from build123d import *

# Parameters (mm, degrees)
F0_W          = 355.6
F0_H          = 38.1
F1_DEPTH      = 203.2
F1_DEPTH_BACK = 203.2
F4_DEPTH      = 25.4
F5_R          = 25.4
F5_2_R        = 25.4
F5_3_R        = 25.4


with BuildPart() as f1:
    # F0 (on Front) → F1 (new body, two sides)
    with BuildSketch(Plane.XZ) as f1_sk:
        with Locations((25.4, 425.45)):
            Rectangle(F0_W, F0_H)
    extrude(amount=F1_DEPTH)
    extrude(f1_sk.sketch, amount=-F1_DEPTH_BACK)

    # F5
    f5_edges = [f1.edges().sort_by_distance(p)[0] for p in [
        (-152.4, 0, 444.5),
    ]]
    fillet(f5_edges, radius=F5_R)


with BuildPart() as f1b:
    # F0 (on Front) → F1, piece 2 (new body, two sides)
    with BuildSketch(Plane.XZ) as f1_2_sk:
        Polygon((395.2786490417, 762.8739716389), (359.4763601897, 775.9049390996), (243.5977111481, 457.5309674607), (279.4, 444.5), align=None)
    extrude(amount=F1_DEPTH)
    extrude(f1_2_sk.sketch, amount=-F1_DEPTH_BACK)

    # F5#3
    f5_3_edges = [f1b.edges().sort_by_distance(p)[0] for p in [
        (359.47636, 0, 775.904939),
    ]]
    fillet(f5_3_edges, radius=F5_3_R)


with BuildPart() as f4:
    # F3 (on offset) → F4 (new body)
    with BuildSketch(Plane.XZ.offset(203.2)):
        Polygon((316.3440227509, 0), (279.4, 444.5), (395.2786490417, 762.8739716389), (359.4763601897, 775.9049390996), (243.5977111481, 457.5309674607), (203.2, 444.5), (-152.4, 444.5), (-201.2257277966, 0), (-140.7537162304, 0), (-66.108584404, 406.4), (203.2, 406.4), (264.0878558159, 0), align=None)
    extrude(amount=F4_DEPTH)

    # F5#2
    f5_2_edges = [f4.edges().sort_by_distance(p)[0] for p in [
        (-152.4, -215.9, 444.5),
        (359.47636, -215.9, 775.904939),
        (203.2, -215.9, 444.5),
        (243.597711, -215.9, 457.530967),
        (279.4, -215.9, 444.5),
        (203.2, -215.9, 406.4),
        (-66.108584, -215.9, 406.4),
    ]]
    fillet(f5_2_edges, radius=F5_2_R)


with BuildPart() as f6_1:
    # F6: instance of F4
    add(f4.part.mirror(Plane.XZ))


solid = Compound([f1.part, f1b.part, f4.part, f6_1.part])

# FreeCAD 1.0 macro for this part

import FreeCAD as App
import Part
import Sketcher
from FreeCAD import Vector
Q = App.Units.Quantity


def edges_at(feature, points):
    """Names of the edges that pass closest to the given points."""
    edges = feature.Shape.Edges
    near = lambda p: min(range(len(edges)), key=lambda i: edges[i].distToShape(Part.Vertex(*p))[0])
    return sorted({f"Edge{near(p) + 1}" for p in points})


def add_polygon(sketch, points):
    """Adds a closed chain of lines whose ends are joined by coincident constraints."""
    first, n = sketch.GeometryCount, len(points)
    for a, b in zip(points, points[1:] + points[:1]):
        sketch.addGeometry(Part.LineSegment(App.Vector(*a, 0), App.Vector(*b, 0)), False)
    for i in range(n):
        sketch.addConstraint(Sketcher.Constraint("Coincident", first + i, 2, first + (i + 1) % n, 1))

doc = App.newDocument("Part")
body = doc.addObject("PartDesign::Body", "Body")

sketch1 = doc.addObject("Sketcher::SketchObject", "Sketch")
body.addObject(sketch1)
sketch1.AttachmentSupport = (doc.XZ_Plane, [""])
sketch1.MapMode = "FlatFace"
add_polygon(sketch1, [(-152, 444), (-152, 406), (203, 406), (203, 444)])
sketch1.addConstraint([
    Sketcher.Constraint("Vertical", 0),
    Sketcher.Constraint("Horizontal", 1),
    Sketcher.Constraint("Vertical", 2),
    Sketcher.Constraint("Horizontal", 3),
    Sketcher.Constraint("DistanceX", 1, 1, 1, 2, Q("14 in")),
    Sketcher.Constraint("DistanceY", 0, 2, 0, 1, Q("1.5 in")),
    Sketcher.Constraint("DistanceX", 0, 2, -1, 1, Q("6 in")),
    Sketcher.Constraint("DistanceY", -1, 1, 0, 2, Q("16 in")),
])
pad1 = doc.addObject("PartDesign::Pad", "Pad")
body.addObject(pad1)
pad1.Profile = sketch1
pad1.Type = "TwoLengths"
pad1.Length = Q("8 in")
pad1.Length2 = Q("8 in")
doc.recompute()

fillet = doc.addObject("PartDesign::Fillet", "Fillet")
body.addObject(fillet)
fillet.Base = (pad1, edges_at(pad1, [(-152.4, 0, 444.5)]))
fillet.Radius = Q("1 in")
body2 = doc.addObject("PartDesign::Body", "Body001")

sketch2 = doc.addObject("Sketcher::SketchObject", "Sketch001")
body2.addObject(sketch2)
sketch2.AttachmentSupport = (doc.getObject("XZ_Plane001"), [""])
sketch2.MapMode = "FlatFace"
add_polygon(sketch2, [(395, 763), (359, 776), (244, 458), (279, 444)])
sketch2.addConstraint([
    Sketcher.Constraint("Perpendicular", 0, 1),
    Sketcher.Constraint("Perpendicular", 1, 2),
    Sketcher.Constraint("Perpendicular", 2, 3),
    Sketcher.Constraint("DistanceX", -1, 1, 2, 2, Q("11 in")),
    Sketcher.Constraint("Angle", 0, Q("160 deg")),
    Sketcher.Constraint("Distance", 0, Q("1.5 in")),
    Sketcher.Constraint("DistanceY", -1, 1, 2, 2, Q("17.5 in")),
    Sketcher.Constraint("DistanceX", -1, 1, 0, 2, 359.47636),
])
pad2 = doc.addObject("PartDesign::Pad", "Pad001")
body2.addObject(pad2)
pad2.Profile = sketch2
pad2.Type = "TwoLengths"
pad2.Length = Q("8 in")
pad2.Length2 = Q("8 in")
doc.recompute()

fillet2 = doc.addObject("PartDesign::Fillet", "Fillet001")
body2.addObject(fillet2)
fillet2.Base = (pad2, edges_at(pad2, [(359.476, 0, 775.905)]))
fillet2.Radius = Q("1 in")
body3 = doc.addObject("PartDesign::Body", "Body002")

sketch3 = doc.addObject("Sketcher::SketchObject", "Sketch002")
body3.addObject(sketch3)
sketch3.AttachmentSupport = (doc.getObject("XZ_Plane002"), [""])
sketch3.MapMode = "FlatFace"
sketch3.AttachmentOffset = App.Placement(Vector(0, 0, 8 * 25.4), App.Rotation())
add_polygon(sketch3, [(316, 0), (279, 444), (395, 763), (359, 776), (244, 458), (203, 444), (-152, 444), (-201, 0), (-141, 0), (-66, 406), (203, 406), (264, 0)])
sketch3.addConstraint([
    Sketcher.Constraint("Horizontal", 5),
    Sketcher.Constraint("Horizontal", 7),
    Sketcher.Constraint("Horizontal", 9),
    Sketcher.Constraint("Horizontal", 11),
    Sketcher.Constraint("PointOnObject", 6, 2, -1),
    Sketcher.Constraint("PointOnObject", 10, 2, -1),
    Sketcher.Constraint("Perpendicular", 1, 2),
    Sketcher.Constraint("Perpendicular", 2, 3),
    Sketcher.Constraint("Horizontal", 0, 2, 4, 2),
    Sketcher.Constraint("Vertical", 4, 2, 9, 2),
    Sketcher.Constraint("Equal", 1, 3),
    Sketcher.Constraint("DistanceX", 5, 2, 5, 1, Q("14 in")),
    Sketcher.Constraint("DistanceX", -1, 1, 0, 2, Q("11 in")),
    Sketcher.Constraint("DistanceX", -1, 1, 4, 2, Q("8 in")),
    Sketcher.Constraint("DistanceY", -1, 1, 8, 2, Q("16 in")),
    Sketcher.Constraint("Angle", 1, Q("70 deg")),
    Sketcher.Constraint("Distance", 2, Q("1.5 in")),
    Sketcher.Constraint("DistanceY", -1, 1, 0, 2, Q("17.5 in")),
    Sketcher.Constraint("DistanceX", 9, 1, 9, 2, Q("10.6027002 in")),
    Sketcher.Constraint("DistanceX", 7, 1, 7, 2, 60.472012),
    Sketcher.Constraint("Distance", 6, 447.17357),
    Sketcher.Constraint("DistanceX", 11, 1, 11, 2, 52.256167),
    Sketcher.Constraint("DistanceX", -1, 1, 1, 2, 395.278649),
    Sketcher.Constraint("DistanceX", 7, 2, 11, 2, 457.097739),
])
pad3 = doc.addObject("PartDesign::Pad", "Pad002")
body3.addObject(pad3)
pad3.Profile = sketch3
pad3.Length = Q("1 in")
doc.recompute()

fillet3 = doc.addObject("PartDesign::Fillet", "Fillet002")
body3.addObject(fillet3)
fillet3.Base = (pad3, edges_at(pad3, [
    (-152.4, -215.9, 444.5),
    (359.476, -215.9, 775.905),
    (203.2, -215.9, 444.5),
    (243.598, -215.9, 457.531),
    (279.4, -215.9, 444.5),
    (203.2, -215.9, 406.4),
    (-66.109, -215.9, 406.4),
]))
fillet3.Radius = Q("1 in")
body4 = doc.addObject("PartDesign::Body", "Body003")
doc.recompute()

mirroring = doc.addObject("Part::Mirroring", "Mirroring")
mirroring.Source = body3
mirroring.Base = Vector(0, 0, 0)
mirroring.Normal = Vector(0, -1, 0)
body4.BaseFeature = mirroring
doc.recompute()
mirroring.Visibility = False

doc.recompute()
